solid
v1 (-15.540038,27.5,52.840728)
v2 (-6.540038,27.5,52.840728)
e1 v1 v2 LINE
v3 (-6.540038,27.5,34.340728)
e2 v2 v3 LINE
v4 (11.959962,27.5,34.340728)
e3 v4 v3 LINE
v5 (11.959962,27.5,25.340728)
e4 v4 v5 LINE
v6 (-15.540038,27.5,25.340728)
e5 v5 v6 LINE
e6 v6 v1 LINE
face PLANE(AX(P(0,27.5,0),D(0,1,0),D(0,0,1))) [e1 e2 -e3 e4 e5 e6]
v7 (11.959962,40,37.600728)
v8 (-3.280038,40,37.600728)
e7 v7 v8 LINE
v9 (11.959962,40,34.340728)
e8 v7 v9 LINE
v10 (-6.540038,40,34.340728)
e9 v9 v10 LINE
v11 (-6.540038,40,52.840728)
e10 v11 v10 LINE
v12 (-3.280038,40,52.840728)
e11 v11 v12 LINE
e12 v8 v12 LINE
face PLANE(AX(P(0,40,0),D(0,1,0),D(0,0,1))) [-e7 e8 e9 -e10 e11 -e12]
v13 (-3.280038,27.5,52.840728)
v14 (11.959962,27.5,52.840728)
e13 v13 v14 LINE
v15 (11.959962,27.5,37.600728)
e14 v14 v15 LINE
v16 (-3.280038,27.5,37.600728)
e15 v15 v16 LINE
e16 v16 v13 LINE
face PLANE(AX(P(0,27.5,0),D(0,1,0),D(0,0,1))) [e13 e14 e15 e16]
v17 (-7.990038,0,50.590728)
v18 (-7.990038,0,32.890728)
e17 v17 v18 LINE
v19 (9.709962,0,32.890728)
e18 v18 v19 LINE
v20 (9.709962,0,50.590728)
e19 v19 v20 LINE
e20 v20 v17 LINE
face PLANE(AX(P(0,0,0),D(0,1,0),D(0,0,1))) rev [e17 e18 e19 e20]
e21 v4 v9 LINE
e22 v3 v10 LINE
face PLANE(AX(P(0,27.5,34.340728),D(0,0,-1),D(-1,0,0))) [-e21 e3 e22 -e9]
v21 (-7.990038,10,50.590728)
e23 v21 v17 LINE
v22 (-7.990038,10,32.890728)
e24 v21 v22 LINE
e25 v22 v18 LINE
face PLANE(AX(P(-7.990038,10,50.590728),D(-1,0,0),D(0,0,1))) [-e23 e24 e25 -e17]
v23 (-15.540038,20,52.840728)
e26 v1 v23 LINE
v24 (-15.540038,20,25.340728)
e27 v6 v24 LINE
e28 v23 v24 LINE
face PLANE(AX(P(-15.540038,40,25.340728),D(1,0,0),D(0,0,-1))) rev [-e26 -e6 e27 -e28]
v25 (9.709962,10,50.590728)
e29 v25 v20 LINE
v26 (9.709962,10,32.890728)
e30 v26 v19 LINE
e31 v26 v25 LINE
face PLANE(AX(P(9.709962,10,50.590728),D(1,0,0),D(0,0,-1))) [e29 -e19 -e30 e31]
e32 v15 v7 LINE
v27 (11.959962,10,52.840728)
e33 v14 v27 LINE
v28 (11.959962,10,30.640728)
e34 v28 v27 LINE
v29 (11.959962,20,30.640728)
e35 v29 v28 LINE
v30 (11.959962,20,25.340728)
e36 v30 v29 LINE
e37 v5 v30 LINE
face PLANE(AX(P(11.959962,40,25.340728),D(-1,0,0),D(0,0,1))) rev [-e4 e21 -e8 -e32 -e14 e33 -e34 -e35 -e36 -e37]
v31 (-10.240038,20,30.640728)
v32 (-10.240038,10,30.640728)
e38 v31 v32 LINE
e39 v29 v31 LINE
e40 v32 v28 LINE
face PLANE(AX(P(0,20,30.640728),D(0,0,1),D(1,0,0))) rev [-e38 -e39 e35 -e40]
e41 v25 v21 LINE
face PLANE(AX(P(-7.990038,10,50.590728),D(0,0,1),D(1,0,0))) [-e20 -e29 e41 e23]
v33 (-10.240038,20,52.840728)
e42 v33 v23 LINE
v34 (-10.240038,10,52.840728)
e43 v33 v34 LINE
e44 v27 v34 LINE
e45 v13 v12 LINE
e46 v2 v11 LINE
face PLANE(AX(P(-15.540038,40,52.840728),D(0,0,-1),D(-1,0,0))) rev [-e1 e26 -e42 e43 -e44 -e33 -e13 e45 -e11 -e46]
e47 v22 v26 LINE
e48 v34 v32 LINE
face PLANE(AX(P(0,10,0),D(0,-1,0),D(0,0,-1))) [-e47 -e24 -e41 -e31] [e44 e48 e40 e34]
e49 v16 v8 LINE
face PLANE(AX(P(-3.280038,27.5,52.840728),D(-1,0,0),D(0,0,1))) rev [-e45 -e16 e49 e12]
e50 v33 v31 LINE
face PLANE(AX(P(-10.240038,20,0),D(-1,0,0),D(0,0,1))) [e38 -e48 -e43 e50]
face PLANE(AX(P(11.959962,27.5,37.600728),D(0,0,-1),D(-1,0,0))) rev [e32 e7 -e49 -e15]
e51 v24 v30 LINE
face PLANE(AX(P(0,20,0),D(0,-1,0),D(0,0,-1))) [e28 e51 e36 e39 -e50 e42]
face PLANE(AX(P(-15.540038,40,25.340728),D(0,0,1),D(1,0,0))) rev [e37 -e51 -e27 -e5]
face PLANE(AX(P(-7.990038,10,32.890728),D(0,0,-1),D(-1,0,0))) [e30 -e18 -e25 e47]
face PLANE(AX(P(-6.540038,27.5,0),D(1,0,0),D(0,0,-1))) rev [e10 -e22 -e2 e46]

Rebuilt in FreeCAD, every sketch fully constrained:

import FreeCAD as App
import Part
import Sketcher
Q = App.Units.Quantity

doc = App.newDocument("Part")
body = doc.addObject("PartDesign::Body", "Body")

sketch1 = doc.addObject("Sketcher::SketchObject", "Sketch")
body.addObject(sketch1)
sketch1.AttachmentSupport = (doc.XZ_Plane, [""])
sketch1.MapMode = "FlatFace"
sketch1.addGeometry([
    Part.LineSegment(App.Vector(-16, 25, 0), App.Vector(-16, 53, 0)),
    Part.LineSegment(App.Vector(-16, 53, 0), App.Vector(12, 53, 0)),
    Part.LineSegment(App.Vector(12, 53, 0), App.Vector(12, 25, 0)),
    Part.LineSegment(App.Vector(12, 25, 0), App.Vector(-16, 25, 0)),
], False)
sketch1.addConstraint([
    Sketcher.Constraint("Coincident", 0, 2, 1, 1),
    Sketcher.Constraint("Coincident", 1, 2, 2, 1),
    Sketcher.Constraint("Coincident", 2, 2, 3, 1),
    Sketcher.Constraint("Coincident", 3, 2, 0, 1),
    Sketcher.Constraint("Vertical", 0),
    Sketcher.Constraint("Horizontal", 1),
    Sketcher.Constraint("Vertical", 2),
    Sketcher.Constraint("Horizontal", 3),
    Sketcher.Constraint("Equal", 3, 0),
    Sketcher.Constraint("DistanceX", 1, 1, 1, 2, Q("27.5 mm")),
    Sketcher.Constraint("DistanceX", 0, 2, -1, 1, Q("15.540038 mm")),
    Sketcher.Constraint("DistanceY", -1, 1, 0, 2, Q("52.840728 mm")),
])
pad1 = doc.addObject("PartDesign::Pad", "Pad")
body.addObject(pad1)
pad1.Profile = sketch1
pad1.Length = 40
pad1.Reversed = True

sketch2 = doc.addObject("Sketcher::SketchObject", "Sketch001")
body.addObject(sketch2)
sketch2.AttachmentSupport = (doc.XZ_Plane, [""])
sketch2.MapMode = "FlatFace"
sketch2.AttachmentOffset = App.Placement(App.Vector(0, 0, -40), App.Rotation())
sketch2.addGeometry([
    Part.LineSegment(App.Vector(-3, 38, 0), App.Vector(-3, 53, 0)),
    Part.LineSegment(App.Vector(-3, 53, 0), App.Vector(12, 53, 0)),
    Part.LineSegment(App.Vector(12, 53, 0), App.Vector(12, 38, 0)),
    Part.LineSegment(App.Vector(12, 38, 0), App.Vector(-3, 38, 0)),
], False)
sketch2.addConstraint([
    Sketcher.Constraint("Coincident", 0, 2, 1, 1),
    Sketcher.Constraint("Coincident", 1, 2, 2, 1),
    Sketcher.Constraint("Coincident", 2, 2, 3, 1),
    Sketcher.Constraint("Coincident", 3, 2, 0, 1),
    Sketcher.Constraint("Vertical", 0),
    Sketcher.Constraint("Horizontal", 1),
    Sketcher.Constraint("Vertical", 2),
    Sketcher.Constraint("Horizontal", 3),
    Sketcher.Constraint("Equal", 3, 0),
    Sketcher.Constraint("DistanceX", 1, 1, 1, 2, Q("15.24 mm")),
    Sketcher.Constraint("DistanceX", 0, 2, -1, 1, Q("3.280038 mm")),
    Sketcher.Constraint("DistanceY", -1, 1, 0, 2, Q("52.840728 mm")),
])
pocket1 = doc.addObject("PartDesign::Pocket", "Pocket")
body.addObject(pocket1)
pocket1.Profile = sketch2
pocket1.Length = 12.5
pocket1.Reversed = True

sketch3 = doc.addObject("Sketcher::SketchObject", "Sketch002")
body.addObject(sketch3)
sketch3.AttachmentSupport = (doc.XZ_Plane, [""])
sketch3.MapMode = "FlatFace"
sketch3.addGeometry([
    Part.LineSegment(App.Vector(-10, 31, 0), App.Vector(-10, 53, 0)),
    Part.LineSegment(App.Vector(-10, 53, 0), App.Vector(-16, 53, 0)),
    Part.LineSegment(App.Vector(-16, 53, 0), App.Vector(-16, 25, 0)),
    Part.LineSegment(App.Vector(-16, 25, 0), App.Vector(12, 25, 0)),
    Part.LineSegment(App.Vector(12, 25, 0), App.Vector(12, 31, 0)),
    Part.LineSegment(App.Vector(12, 31, 0), App.Vector(-10, 31, 0)),
], False)
sketch3.addConstraint([
    Sketcher.Constraint("Coincident", 0, 2, 1, 1),
    Sketcher.Constraint("Coincident", 1, 2, 2, 1),
    Sketcher.Constraint("Coincident", 2, 2, 3, 1),
    Sketcher.Constraint("Coincident", 3, 2, 4, 1),
    Sketcher.Constraint("Coincident", 4, 2, 5, 1),
    Sketcher.Constraint("Coincident", 5, 2, 0, 1),
    Sketcher.Constraint("Vertical", 0),
    Sketcher.Constraint("Horizontal", 1),
    Sketcher.Constraint("Vertical", 2),
    Sketcher.Constraint("Horizontal", 3),
    Sketcher.Constraint("Vertical", 4),
    Sketcher.Constraint("Horizontal", 5),
    Sketcher.Constraint("Equal", 5, 0),
    Sketcher.Constraint("Equal", 3, 2),
    Sketcher.Constraint("DistanceX", 1, 2, 1, 1, Q("5.3 mm")),
    Sketcher.Constraint("DistanceX", 3, 1, 3, 2, Q("27.5 mm")),
    Sketcher.Constraint("DistanceX", 0, 2, -1, 1, Q("10.240038 mm")),
    Sketcher.Constraint("DistanceY", -1, 1, 0, 2, Q("52.840728 mm")),
])
pocket2 = doc.addObject("PartDesign::Pocket", "Pocket001")
body.addObject(pocket2)
pocket2.Profile = sketch3
pocket2.Length = 20

sketch4 = doc.addObject("Sketcher::SketchObject", "Sketch003")
body.addObject(sketch4)
sketch4.AttachmentSupport = (doc.XZ_Plane, [""])
sketch4.MapMode = "FlatFace"
sketch4.addGeometry([
    Part.LineSegment(App.Vector(-10, 53, 0), App.Vector(-10, 31, 0)),
    Part.LineSegment(App.Vector(-10, 31, 0), App.Vector(12, 31, 0)),
    Part.LineSegment(App.Vector(12, 31, 0), App.Vector(12, 53, 0)),
    Part.LineSegment(App.Vector(12, 53, 0), App.Vector(-10, 53, 0)),
    Part.LineSegment(App.Vector(10, 33, 0), App.Vector(-8, 33, 0)),
    Part.LineSegment(App.Vector(-8, 33, 0), App.Vector(-8, 51, 0)),
    Part.LineSegment(App.Vector(-8, 51, 0), App.Vector(10, 51, 0)),
    Part.LineSegment(App.Vector(10, 51, 0), App.Vector(10, 33, 0)),
], False)
sketch4.addConstraint([
    Sketcher.Constraint("Coincident", 0, 2, 1, 1),
    Sketcher.Constraint("Coincident", 1, 2, 2, 1),
    Sketcher.Constraint("Coincident", 2, 2, 3, 1),
    Sketcher.Constraint("Coincident", 3, 2, 0, 1),
    Sketcher.Constraint("Coincident", 4, 2, 5, 1),
    Sketcher.Constraint("Coincident", 5, 2, 6, 1),
    Sketcher.Constraint("Coincident", 6, 2, 7, 1),
    Sketcher.Constraint("Coincident", 7, 2, 4, 1),
    Sketcher.Constraint("Vertical", 0),
    Sketcher.Constraint("Horizontal", 1),
    Sketcher.Constraint("Vertical", 2),
    Sketcher.Constraint("Horizontal", 3),
    Sketcher.Constraint("Horizontal", 4),
    Sketcher.Constraint("Vertical", 5),
    Sketcher.Constraint("Horizontal", 6),
    Sketcher.Constraint("Vertical", 7),
    Sketcher.Constraint("Equal", 3, 0),
    Sketcher.Constraint("Equal", 6, 5),
    Sketcher.Constraint("DistanceX", 1, 1, 1, 2, Q("22.2 mm")),
    Sketcher.Constraint("DistanceX", 4, 2, 4, 1, Q("17.7 mm")),
    Sketcher.Constraint("DistanceX", 0, 2, 4, 2, Q("2.25 mm")),
    Sketcher.Constraint("DistanceY", 0, 2, 4, 2, Q("2.25 mm")),
    Sketcher.Constraint("DistanceX", 0, 2, -1, 1, Q("10.240038 mm")),
    Sketcher.Constraint("DistanceY", -1, 1, 0, 2, Q("30.640728 mm")),
])
pocket3 = doc.addObject("PartDesign::Pocket", "Pocket002")
body.addObject(pocket3)
pocket3.Profile = sketch4
pocket3.Length = 10

sketch5 = doc.addObject("Sketcher::SketchObject", "Sketch004")
body.addObject(sketch5)
sketch5.AttachmentSupport = (doc.XZ_Plane, [""])
sketch5.MapMode = "FlatFace"
sketch5.AttachmentOffset = App.Placement(App.Vector(0, 0, -40), App.Rotation())
sketch5.addGeometry([
    Part.LineSegment(App.Vector(12, 34, 0), App.Vector(12, 25, 0)),
    Part.LineSegment(App.Vector(12, 25, 0), App.Vector(-16, 25, 0)),
    Part.LineSegment(App.Vector(-16, 25, 0), App.Vector(-16, 53, 0)),
    Part.LineSegment(App.Vector(-16, 53, 0), App.Vector(-7, 53, 0)),
    Part.LineSegment(App.Vector(-7, 53, 0), App.Vector(-7, 34, 0)),
    Part.LineSegment(App.Vector(-7, 34, 0), App.Vector(12, 34, 0)),
], False)
sketch5.addConstraint([
    Sketcher.Constraint("Coincident", 0, 2, 1, 1),
    Sketcher.Constraint("Coincident", 1, 2, 2, 1),
    Sketcher.Constraint("Coincident", 2, 2, 3, 1),
    Sketcher.Constraint("Coincident", 3, 2, 4, 1),
    Sketcher.Constraint("Coincident", 4, 2, 5, 1),
    Sketcher.Constraint("Coincident", 5, 2, 0, 1),
    Sketcher.Constraint("Vertical", 0),
    Sketcher.Constraint("Horizontal", 1),
    Sketcher.Constraint("Vertical", 2),
    Sketcher.Constraint("Horizontal", 3),
    Sketcher.Constraint("Vertical", 4),
    Sketcher.Constraint("Horizontal", 5),
    Sketcher.Constraint("Equal", 3, 0),
    Sketcher.Constraint("Equal", 1, 2),
    Sketcher.Constraint("DistanceX", 3, 1, 3, 2, Q("9 mm")),
    Sketcher.Constraint("DistanceX", 1, 2, 1, 1, Q("27.5 mm")),
    Sketcher.Constraint("DistanceX", -1, 1, 0, 2, Q("11.959962 mm")),
    Sketcher.Constraint("DistanceY", -1, 1, 0, 2, Q("25.340728 mm")),
])
pocket4 = doc.addObject("PartDesign::Pocket", "Pocket003")
body.addObject(pocket4)
pocket4.Profile = sketch5
pocket4.Length = 12.5
pocket4.Reversed = True

doc.recompute()
